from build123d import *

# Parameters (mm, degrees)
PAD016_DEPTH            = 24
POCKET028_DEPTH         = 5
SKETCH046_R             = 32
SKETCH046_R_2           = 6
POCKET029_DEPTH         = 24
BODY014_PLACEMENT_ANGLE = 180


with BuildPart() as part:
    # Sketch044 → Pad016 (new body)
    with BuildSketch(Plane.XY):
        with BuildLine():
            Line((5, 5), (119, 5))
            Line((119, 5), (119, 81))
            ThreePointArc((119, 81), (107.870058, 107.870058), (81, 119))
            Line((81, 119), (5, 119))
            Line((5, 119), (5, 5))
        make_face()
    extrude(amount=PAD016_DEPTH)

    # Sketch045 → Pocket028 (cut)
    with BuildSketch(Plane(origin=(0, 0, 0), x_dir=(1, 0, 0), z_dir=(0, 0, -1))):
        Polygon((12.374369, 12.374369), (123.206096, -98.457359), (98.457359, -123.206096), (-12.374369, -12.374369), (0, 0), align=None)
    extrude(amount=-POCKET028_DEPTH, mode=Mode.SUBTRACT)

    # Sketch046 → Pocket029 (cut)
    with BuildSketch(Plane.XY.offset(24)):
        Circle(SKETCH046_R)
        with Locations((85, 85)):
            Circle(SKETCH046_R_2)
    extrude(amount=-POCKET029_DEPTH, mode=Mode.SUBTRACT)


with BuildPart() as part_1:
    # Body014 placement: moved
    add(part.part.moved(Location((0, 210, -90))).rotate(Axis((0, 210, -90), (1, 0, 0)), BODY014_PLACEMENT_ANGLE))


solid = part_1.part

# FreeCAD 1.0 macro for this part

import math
import FreeCAD as App
import Part
import Sketcher
Q = App.Units.Quantity

doc = App.newDocument("Part")
body = doc.addObject("PartDesign::Body", "Body")

# Sketch on XY plane
sketch1 = body.newObject("Sketcher::SketchObject", "Sketch")
sketch1.AttachmentSupport = (doc.getObject("XY_Plane"), [""])
sketch1.MapMode = "FlatFace"
sketch1.addGeometry([
    Part.LineSegment(App.Vector(5, 5, 0), App.Vector(119, 5, 0)),  # 0
    Part.LineSegment(App.Vector(119, 5, 0), App.Vector(119, 81, 0)),  # 1
    Part.ArcOfCircle(Part.Circle(App.Vector(81, 81, 0), App.Vector(0, 0, 1), 38), math.radians(0), math.radians(90)),  # 2
    Part.LineSegment(App.Vector(81, 119, 0), App.Vector(5, 119, 0)),  # 3
    Part.LineSegment(App.Vector(5, 119, 0), App.Vector(5, 5, 0)),  # 4
], False)
sketch1.addConstraint([
    Sketcher.Constraint("Coincident", 0, 2, 1, 1),
    Sketcher.Constraint("Tangent", 1, 2, 2, 1),
    Sketcher.Constraint("Tangent", 2, 2, 3, 1),
    Sketcher.Constraint("Coincident", 3, 2, 4, 1),
    Sketcher.Constraint("Coincident", 4, 2, 0, 1),
    Sketcher.Constraint("Horizontal", 0),
    Sketcher.Constraint("Vertical", 1),
    Sketcher.Constraint("Horizontal", 3),
    Sketcher.Constraint("Vertical", 4),
    Sketcher.Constraint("Equal", 3, 1),
    Sketcher.Constraint("Radius", 2, 37.999999),
    Sketcher.Constraint("DistanceX", 0, 1, 0, 2, 114.0),
    Sketcher.Constraint("DistanceX", -1, 1, 2, 3, 81.000001),
    Sketcher.Constraint("DistanceY", -1, 1, 2, 3, 81.000001),
])
pad1 = body.newObject("PartDesign::Pad", "Pad")
pad1.Profile = sketch1
pad1.Length = 24

# Sketch on XY plane
sketch2 = body.newObject("Sketcher::SketchObject", "Sketch001")
sketch2.AttachmentSupport = (doc.getObject("XY_Plane"), [""])
sketch2.MapMode = "FlatFace"
sketch2.addGeometry([
    Part.LineSegment(App.Vector(123, 98, 0), App.Vector(12, -12, 0)),
    Part.LineSegment(App.Vector(12, -12, 0), App.Vector(-12, 12, 0)),
    Part.LineSegment(App.Vector(-12, 12, 0), App.Vector(98, 123, 0)),
    Part.LineSegment(App.Vector(98, 123, 0), App.Vector(123, 98, 0)),
], False)
sketch2.addConstraint([
    Sketcher.Constraint("Coincident", 0, 2, 1, 1),
    Sketcher.Constraint("Coincident", 1, 2, 2, 1),
    Sketcher.Constraint("Coincident", 2, 2, 3, 1),
    Sketcher.Constraint("Coincident", 3, 2, 0, 1),
    Sketcher.Constraint("Symmetric", 0, 2, 1, 2, -1, 1),
    Sketcher.Constraint("Perpendicular", 0, 1),
    Sketcher.Constraint("Perpendicular", 1, 2),
    Sketcher.Constraint("Perpendicular", 2, 3),
    Sketcher.Constraint("Angle", 0, Q("-135 deg")),
    Sketcher.Constraint("Distance", 1, 35.000001),
    Sketcher.Constraint("DistanceX", -1, 1, 2, 2, 98.457359),
])
pocket1 = body.newObject("PartDesign::Pocket", "Pocket")
pocket1.Profile = sketch2
pocket1.Length = 5
pocket1.Reversed = True

# Sketch on XY plane
sketch3 = body.newObject("Sketcher::SketchObject", "Sketch002")
sketch3.AttachmentSupport = (doc.getObject("XY_Plane"), [""])
sketch3.MapMode = "FlatFace"
sketch3.AttachmentOffset = App.Placement(App.Vector(0, 0, 24), App.Rotation())
sketch3.addGeometry([
    Part.Circle(App.Vector(0, 0, 0), App.Vector(0, 0, 1), 32),
    Part.Circle(App.Vector(85, 85, 0), App.Vector(0, 0, 1), 6),
], False)
sketch3.addConstraint([
    Sketcher.Constraint("Coincident", 0, 3, -1, 1),
    Sketcher.Constraint("Diameter", 0, 64.0),
    Sketcher.Constraint("Diameter", 1, 12.0),
    Sketcher.Constraint("DistanceX", -1, 1, 1, 3, 85.0),
    Sketcher.Constraint("DistanceY", -1, 1, 1, 3, 85.0),
])
pocket2 = body.newObject("PartDesign::Pocket", "Pocket001")
pocket2.Profile = sketch3
pocket2.Length = 24
body2 = doc.addObject("PartDesign::Body", "Body001")
doc.recompute()

body.Placement = App.Placement(App.Vector(0, 210, -90), App.Rotation(App.Vector(1, 0, 0), 180))
boolean = body2.newObject("PartDesign::Boolean", "Boolean")
boolean.Type = "Fuse"
boolean.addObjects([body])

doc.recompute()
